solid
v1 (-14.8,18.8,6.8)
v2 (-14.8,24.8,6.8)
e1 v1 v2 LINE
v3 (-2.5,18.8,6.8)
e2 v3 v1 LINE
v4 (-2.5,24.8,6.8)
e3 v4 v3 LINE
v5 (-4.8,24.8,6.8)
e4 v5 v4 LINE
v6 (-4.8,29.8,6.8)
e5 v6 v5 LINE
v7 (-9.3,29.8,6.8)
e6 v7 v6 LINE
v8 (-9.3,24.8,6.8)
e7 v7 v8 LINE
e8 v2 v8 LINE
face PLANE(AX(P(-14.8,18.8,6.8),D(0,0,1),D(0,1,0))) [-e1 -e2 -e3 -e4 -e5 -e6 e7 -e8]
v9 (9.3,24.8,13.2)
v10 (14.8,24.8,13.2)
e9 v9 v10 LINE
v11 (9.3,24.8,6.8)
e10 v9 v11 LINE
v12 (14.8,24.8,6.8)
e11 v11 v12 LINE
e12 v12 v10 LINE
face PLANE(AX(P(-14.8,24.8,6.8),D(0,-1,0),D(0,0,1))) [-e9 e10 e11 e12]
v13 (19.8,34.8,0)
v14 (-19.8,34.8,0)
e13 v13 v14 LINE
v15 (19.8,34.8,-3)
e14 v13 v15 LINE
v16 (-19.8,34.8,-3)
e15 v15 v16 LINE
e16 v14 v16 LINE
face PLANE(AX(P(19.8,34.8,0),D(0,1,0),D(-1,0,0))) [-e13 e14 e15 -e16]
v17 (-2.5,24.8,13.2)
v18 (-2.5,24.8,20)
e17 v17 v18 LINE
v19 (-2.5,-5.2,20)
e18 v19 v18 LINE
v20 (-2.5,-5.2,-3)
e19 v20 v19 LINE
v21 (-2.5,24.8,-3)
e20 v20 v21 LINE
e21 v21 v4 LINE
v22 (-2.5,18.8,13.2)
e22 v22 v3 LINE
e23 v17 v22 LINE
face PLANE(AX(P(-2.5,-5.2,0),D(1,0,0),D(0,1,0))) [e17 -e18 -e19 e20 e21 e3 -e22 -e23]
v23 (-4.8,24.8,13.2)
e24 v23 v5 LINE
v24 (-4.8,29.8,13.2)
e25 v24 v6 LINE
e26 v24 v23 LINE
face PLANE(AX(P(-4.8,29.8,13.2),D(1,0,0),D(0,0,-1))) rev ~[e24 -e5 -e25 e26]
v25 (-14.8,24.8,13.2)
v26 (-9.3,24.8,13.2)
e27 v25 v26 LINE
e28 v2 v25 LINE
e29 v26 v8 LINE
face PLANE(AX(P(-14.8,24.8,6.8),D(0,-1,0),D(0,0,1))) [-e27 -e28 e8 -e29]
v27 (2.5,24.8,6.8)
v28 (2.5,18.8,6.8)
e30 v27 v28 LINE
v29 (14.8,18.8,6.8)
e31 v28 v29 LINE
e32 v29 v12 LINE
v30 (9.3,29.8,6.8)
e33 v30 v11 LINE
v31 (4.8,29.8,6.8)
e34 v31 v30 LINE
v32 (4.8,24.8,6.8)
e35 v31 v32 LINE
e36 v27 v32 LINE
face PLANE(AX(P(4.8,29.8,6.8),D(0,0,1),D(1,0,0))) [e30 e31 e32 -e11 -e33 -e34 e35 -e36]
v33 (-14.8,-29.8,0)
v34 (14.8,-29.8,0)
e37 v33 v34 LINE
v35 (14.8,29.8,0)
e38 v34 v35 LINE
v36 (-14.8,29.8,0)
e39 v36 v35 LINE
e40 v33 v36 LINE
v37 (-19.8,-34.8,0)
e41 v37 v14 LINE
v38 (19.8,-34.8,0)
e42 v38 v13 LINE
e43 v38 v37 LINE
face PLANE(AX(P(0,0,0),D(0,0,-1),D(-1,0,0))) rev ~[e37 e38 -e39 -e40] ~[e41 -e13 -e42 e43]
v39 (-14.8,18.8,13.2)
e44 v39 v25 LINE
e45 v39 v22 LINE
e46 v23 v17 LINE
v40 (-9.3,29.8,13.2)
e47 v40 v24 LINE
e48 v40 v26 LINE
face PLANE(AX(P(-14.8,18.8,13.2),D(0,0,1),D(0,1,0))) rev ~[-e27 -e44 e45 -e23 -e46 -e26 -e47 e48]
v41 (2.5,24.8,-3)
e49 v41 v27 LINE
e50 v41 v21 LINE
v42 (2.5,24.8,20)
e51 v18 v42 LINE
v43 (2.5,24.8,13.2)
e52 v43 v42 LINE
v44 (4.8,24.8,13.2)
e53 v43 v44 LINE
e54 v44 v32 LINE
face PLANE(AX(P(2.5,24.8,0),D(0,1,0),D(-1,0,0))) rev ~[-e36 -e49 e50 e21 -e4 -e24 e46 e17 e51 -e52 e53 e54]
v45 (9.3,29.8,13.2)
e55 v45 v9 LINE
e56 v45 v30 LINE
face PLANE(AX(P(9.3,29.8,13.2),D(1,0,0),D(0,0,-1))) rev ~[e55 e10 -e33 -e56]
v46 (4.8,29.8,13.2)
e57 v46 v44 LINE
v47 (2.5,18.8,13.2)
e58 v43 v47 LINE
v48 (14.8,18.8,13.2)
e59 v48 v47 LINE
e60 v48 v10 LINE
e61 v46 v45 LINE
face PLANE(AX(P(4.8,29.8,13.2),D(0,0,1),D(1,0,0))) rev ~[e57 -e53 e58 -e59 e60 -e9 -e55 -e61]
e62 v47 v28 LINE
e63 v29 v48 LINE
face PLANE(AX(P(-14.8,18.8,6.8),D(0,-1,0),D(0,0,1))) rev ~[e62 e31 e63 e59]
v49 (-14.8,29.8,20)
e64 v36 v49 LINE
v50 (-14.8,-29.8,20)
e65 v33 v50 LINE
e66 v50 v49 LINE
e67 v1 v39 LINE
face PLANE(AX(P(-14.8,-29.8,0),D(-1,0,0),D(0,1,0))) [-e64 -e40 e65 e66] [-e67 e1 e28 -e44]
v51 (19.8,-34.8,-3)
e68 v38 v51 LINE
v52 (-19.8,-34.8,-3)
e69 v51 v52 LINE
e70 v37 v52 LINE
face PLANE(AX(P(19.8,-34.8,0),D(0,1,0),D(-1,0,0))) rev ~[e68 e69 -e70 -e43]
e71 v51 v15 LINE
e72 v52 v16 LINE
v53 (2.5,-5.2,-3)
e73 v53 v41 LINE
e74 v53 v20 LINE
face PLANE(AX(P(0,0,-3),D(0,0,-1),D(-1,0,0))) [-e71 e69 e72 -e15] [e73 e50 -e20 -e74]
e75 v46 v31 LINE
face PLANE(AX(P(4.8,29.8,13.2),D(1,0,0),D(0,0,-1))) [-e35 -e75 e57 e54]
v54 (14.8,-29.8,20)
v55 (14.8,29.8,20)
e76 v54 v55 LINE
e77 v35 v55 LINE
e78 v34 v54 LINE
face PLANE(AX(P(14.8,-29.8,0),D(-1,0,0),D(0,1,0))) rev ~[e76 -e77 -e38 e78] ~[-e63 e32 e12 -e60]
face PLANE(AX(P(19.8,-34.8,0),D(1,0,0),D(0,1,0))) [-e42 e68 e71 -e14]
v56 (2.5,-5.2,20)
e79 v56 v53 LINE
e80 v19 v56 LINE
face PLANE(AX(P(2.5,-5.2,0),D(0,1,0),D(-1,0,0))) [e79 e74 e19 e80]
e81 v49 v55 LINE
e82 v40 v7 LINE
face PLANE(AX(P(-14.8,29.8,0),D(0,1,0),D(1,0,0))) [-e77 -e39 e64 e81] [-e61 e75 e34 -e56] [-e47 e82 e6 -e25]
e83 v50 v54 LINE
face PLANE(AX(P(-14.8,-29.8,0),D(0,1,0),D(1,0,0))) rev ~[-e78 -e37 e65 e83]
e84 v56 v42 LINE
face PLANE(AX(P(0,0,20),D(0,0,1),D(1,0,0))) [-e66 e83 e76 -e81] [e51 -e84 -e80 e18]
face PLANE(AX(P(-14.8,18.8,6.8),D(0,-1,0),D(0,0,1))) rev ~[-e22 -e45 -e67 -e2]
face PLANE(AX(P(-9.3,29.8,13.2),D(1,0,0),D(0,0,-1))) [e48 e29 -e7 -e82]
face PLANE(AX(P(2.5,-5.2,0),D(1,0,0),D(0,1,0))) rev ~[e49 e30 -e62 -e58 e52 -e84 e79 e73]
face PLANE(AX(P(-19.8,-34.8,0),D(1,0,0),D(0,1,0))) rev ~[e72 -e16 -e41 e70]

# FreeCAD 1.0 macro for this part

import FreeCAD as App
import Part
import Sketcher


def add_polygon(sketch, points):
    """Adds a closed chain of lines whose ends are joined by coincident constraints."""
    first, n = sketch.GeometryCount, len(points)
    for a, b in zip(points, points[1:] + points[:1]):
        sketch.addGeometry(Part.LineSegment(App.Vector(*a, 0), App.Vector(*b, 0)), False)
    for i in range(n):
        sketch.addConstraint(Sketcher.Constraint("Coincident", first + i, 2, first + (i + 1) % n, 1))

doc = App.newDocument("Part")
params = doc.addObject("Spreadsheet::Sheet", "Params")
for row, (alias, value) in enumerate([
    ("sketch1_width", "5 mm"),
    ("sketch1_height", "30 mm"),
    ("sketch1_width2", "29.6 mm"),
    ("sketch1_height2", "59.6 mm"),
    ("pad1_length", "20 mm"),
    ("sketch2_width", "5 mm"),
    ("sketch2_height", "30 mm"),
    ("sketch2_width2", "39.6 mm"),
    ("sketch2_height2", "69.6 mm"),
    ("pad2_length", "3 mm"),
    ("sketch3_width", "4.5 mm"),
    ("sketch3_height", "6.4 mm"),
    ("pocket1_length", "11 mm"),
    ("sketch4_width", "6 mm"),
    ("sketch4_height", "6.4 mm"),
], start=1):
    params.set(f"A{row}", alias)
    params.set(f"B{row}", "=" + value)
    params.setAlias(f"B{row}", alias)

body = doc.addObject("PartDesign::Body", "Body")

sketch1 = body.newObject("Sketcher::SketchObject", "Sketch")
sketch1.AttachmentSupport = (doc.getObject("XY_Plane"), [""])
sketch1.MapMode = "FlatFace"
add_polygon(sketch1, [(-14.8, 29.8), (-14.8, -29.8), (14.8, -29.8), (14.8, 29.8)])
add_polygon(sketch1, [(2.5, -5.2), (-2.5, -5.2), (-2.5, 24.8), (2.5, 24.8)])
sketch1.addConstraint([
    Sketcher.Constraint("Vertical", 0),
    Sketcher.Constraint("Horizontal", 1),
    Sketcher.Constraint("Vertical", 2),
    Sketcher.Constraint("Horizontal", 3),
    Sketcher.Constraint("Horizontal", 4),
    Sketcher.Constraint("Vertical", 5),
    Sketcher.Constraint("Horizontal", 6),
    Sketcher.Constraint("Vertical", 7),
    Sketcher.Constraint("Symmetric", 0, 2, 2, 2, -1, 1),
    Sketcher.Constraint("DistanceX", 4, 2, 4, 1, 5.0),
    Sketcher.Constraint("DistanceY", 5, 1, 5, 2, 30.0),
    Sketcher.Constraint("DistanceX", 1, 1, 1, 2, 29.6),
    Sketcher.Constraint("DistanceY", 0, 2, 0, 1, 59.6),
    Sketcher.Constraint("DistanceY", 4, 2, 3, 2, 35.0),
    Sketcher.Constraint("DistanceX", 4, 2, -1, 1, 2.5),
])
sketch1.setExpression("Constraints[17]", "Params.sketch1_width")
sketch1.setExpression("Constraints[18]", "Params.sketch1_height")
sketch1.setExpression("Constraints[19]", "Params.sketch1_width2")
sketch1.setExpression("Constraints[20]", "Params.sketch1_height2")
pad1 = body.newObject("PartDesign::Pad", "Pad")
pad1.Profile = sketch1
pad1.setExpression("Length", "Params.pad1_length")

sketch2 = body.newObject("Sketcher::SketchObject", "Sketch001")
sketch2.AttachmentSupport = (doc.getObject("XY_Plane"), [""])
sketch2.MapMode = "FlatFace"
add_polygon(sketch2, [(19.8, 34.8), (19.8, -34.8), (-19.8, -34.8), (-19.8, 34.8)])
add_polygon(sketch2, [(-2.5, -5.2), (2.5, -5.2), (2.5, 24.8), (-2.5, 24.8)])
sketch2.addConstraint([
    Sketcher.Constraint("Vertical", 0),
    Sketcher.Constraint("Horizontal", 1),
    Sketcher.Constraint("Vertical", 2),
    Sketcher.Constraint("Horizontal", 3),
    Sketcher.Constraint("Horizontal", 4),
    Sketcher.Constraint("Vertical", 5),
    Sketcher.Constraint("Horizontal", 6),
    Sketcher.Constraint("Vertical", 7),
    Sketcher.Constraint("Symmetric", 0, 2, 2, 2, -1, 1),
    Sketcher.Constraint("DistanceX", 4, 1, 4, 2, 5.0),
    Sketcher.Constraint("DistanceY", 5, 1, 5, 2, 30.0),
    Sketcher.Constraint("DistanceX", 1, 2, 1, 1, 39.6),
    Sketcher.Constraint("DistanceY", 0, 2, 0, 1, 69.6),
    Sketcher.Constraint("DistanceY", 4, 2, 3, 2, 40.0),
    Sketcher.Constraint("DistanceX", -1, 1, 4, 2, 2.5),
])
sketch2.setExpression("Constraints[17]", "Params.sketch2_width")
sketch2.setExpression("Constraints[18]", "Params.sketch2_height")
sketch2.setExpression("Constraints[19]", "Params.sketch2_width2")
sketch2.setExpression("Constraints[20]", "Params.sketch2_height2")
pad2 = body.newObject("PartDesign::Pad", "Pad001")
pad2.Profile = sketch2
pad2.setExpression("Length", "Params.pad2_length")
pad2.Reversed = True

sketch3 = body.newObject("Sketcher::SketchObject", "Sketch002")
sketch3.AttachmentSupport = (doc.getObject("XZ_Plane"), [""])
sketch3.MapMode = "FlatFace"
sketch3.AttachmentOffset = App.Placement(App.Vector(0, 0, -29.8), App.Rotation())
add_polygon(sketch3, [(-9.3, 6.8), (-9.3, 13.2), (-4.8, 13.2), (-4.8, 6.8)])
add_polygon(sketch3, [(4.8, 6.8), (4.8, 13.2), (9.3, 13.2), (9.3, 6.8)])
sketch3.addConstraint([
    Sketcher.Constraint("Vertical", 0),
    Sketcher.Constraint("Horizontal", 1),
    Sketcher.Constraint("Vertical", 2),
    Sketcher.Constraint("Horizontal", 3),
    Sketcher.Constraint("Vertical", 4),
    Sketcher.Constraint("Horizontal", 5),
    Sketcher.Constraint("Vertical", 6),
    Sketcher.Constraint("Horizontal", 7),
    Sketcher.Constraint("Symmetric", 1, 2, 4, 2, -2),
    Sketcher.Constraint("Symmetric", 3, 2, 6, 2, -2),
    Sketcher.Constraint("DistanceX", 1, 1, 1, 2, 4.5),
    Sketcher.Constraint("DistanceY", 0, 1, 0, 2, 6.4),
    Sketcher.Constraint("DistanceX", 0, 2, -1, 1, 9.3),
    Sketcher.Constraint("DistanceY", -1, 1, 0, 2, 13.2),
])
sketch3.setExpression("Constraints[18]", "Params.sketch3_width")
sketch3.setExpression("Constraints[19]", "Params.sketch3_height")
pocket1 = body.newObject("PartDesign::Pocket", "Pocket")
pocket1.Profile = sketch3
pocket1.setExpression("Length", "Params.pocket1_length")
pocket1.Reversed = True

sketch4 = body.newObject("Sketcher::SketchObject", "Sketch003")
sketch4.AttachmentSupport = (doc.getObject("YZ_Plane"), [""])
sketch4.MapMode = "FlatFace"
sketch4.AttachmentOffset = App.Placement(App.Vector(0, 0, -14.8), App.Rotation())
add_polygon(sketch4, [(24.8, 6.8), (18.8, 6.8), (18.8, 13.2), (24.8, 13.2)])
sketch4.addConstraint([
    Sketcher.Constraint("Horizontal", 0),
    Sketcher.Constraint("Vertical", 1),
    Sketcher.Constraint("Horizontal", 2),
    Sketcher.Constraint("Vertical", 3),
    Sketcher.Constraint("DistanceX", 0, 2, 0, 1, 6.0),
    Sketcher.Constraint("DistanceY", 1, 1, 1, 2, 6.4),
    Sketcher.Constraint("DistanceX", -1, 1, 0, 2, 18.8),
    Sketcher.Constraint("DistanceY", -1, 1, 0, 2, 6.8),
])
sketch4.setExpression("Constraints[8]", "Params.sketch4_width")
sketch4.setExpression("Constraints[9]", "Params.sketch4_height")
pocket2 = body.newObject("PartDesign::Pocket", "Pocket001")
pocket2.Profile = sketch4
pocket2.Type = "ThroughAll"
pocket2.Reversed = True

doc.recompute()
